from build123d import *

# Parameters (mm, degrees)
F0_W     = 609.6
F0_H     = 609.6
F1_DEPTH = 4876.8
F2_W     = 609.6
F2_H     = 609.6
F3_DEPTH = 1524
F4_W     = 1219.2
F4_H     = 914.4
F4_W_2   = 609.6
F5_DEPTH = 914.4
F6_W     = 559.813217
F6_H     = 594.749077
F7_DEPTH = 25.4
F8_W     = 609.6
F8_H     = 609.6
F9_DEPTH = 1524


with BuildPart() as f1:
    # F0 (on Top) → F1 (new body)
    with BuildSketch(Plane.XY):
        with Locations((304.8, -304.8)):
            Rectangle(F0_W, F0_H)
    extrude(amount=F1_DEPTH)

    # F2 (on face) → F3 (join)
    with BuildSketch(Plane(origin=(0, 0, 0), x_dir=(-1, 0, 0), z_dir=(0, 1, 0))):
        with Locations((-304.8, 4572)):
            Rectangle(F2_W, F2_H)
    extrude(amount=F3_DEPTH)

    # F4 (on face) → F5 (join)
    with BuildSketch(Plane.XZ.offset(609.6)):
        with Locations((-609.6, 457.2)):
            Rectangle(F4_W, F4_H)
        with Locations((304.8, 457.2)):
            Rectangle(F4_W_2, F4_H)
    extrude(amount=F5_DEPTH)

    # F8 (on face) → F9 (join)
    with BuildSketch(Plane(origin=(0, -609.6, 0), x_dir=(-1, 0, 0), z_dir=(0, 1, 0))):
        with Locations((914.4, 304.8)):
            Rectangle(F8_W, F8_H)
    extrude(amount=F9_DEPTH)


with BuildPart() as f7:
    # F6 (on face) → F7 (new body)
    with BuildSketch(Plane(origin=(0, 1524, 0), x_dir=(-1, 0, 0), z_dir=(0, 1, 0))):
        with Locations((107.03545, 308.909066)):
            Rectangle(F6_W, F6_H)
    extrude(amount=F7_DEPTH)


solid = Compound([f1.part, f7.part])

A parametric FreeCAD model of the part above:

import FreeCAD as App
import Part
import Sketcher
Q = App.Units.Quantity


def add_polygon(sketch, points):
    """Adds a closed chain of lines whose ends are joined by coincident constraints."""
    first, n = sketch.GeometryCount, len(points)
    for a, b in zip(points, points[1:] + points[:1]):
        sketch.addGeometry(Part.LineSegment(App.Vector(*a, 0), App.Vector(*b, 0)), False)
    for i in range(n):
        sketch.addConstraint(Sketcher.Constraint("Coincident", first + i, 2, first + (i + 1) % n, 1))

doc = App.newDocument("Part")
params = doc.addObject("Spreadsheet::Sheet", "Params")
for row, (alias, value) in enumerate([
    ("sketch1_width", "24 in"),
    ("pad1_length", "192 in"),
    ("sketch2_width", "24 in"),
    ("pad2_length", "60 in"),
    ("sketch3_width", "72 in"),
    ("sketch3_height", "36 in"),
    ("pad3_length", "36 in"),
    ("sketch4_width", "24 in"),
    ("pad4_length", "60 in"),
    ("pad5_length", "1 in"),
], start=1):
    params.set(f"A{row}", alias)
    params.set(f"B{row}", "=" + value)
    params.setAlias(f"B{row}", alias)

body = doc.addObject("PartDesign::Body", "Body")

sketch1 = body.newObject("Sketcher::SketchObject", "Sketch")
sketch1.AttachmentSupport = (doc.getObject("XY_Plane"), [""])
sketch1.MapMode = "FlatFace"
add_polygon(sketch1, [(0, 0), (0, -609.6), (609.6, -609.6), (609.6, 0)])
sketch1.addConstraint(Sketcher.Constraint("Vertical", 0))
sketch1.addConstraint(Sketcher.Constraint("Horizontal", 1))
sketch1.addConstraint(Sketcher.Constraint("Vertical", 2))
sketch1.addConstraint(Sketcher.Constraint("Horizontal", 3))
sketch1.addConstraint(Sketcher.Constraint("Coincident", 3, 2, -1, 1))
sketch1.addConstraint(Sketcher.Constraint("Equal", 3, 0))
sketch1.addConstraint(Sketcher.Constraint("DistanceX", 1, 1, 1, 2, Q("24 in")))
sketch1.setExpression("Constraints[10]", "Params.sketch1_width")
pad1 = body.newObject("PartDesign::Pad", "Pad")
pad1.Profile = sketch1
pad1.setExpression("Length", "Params.pad1_length")

sketch2 = body.newObject("Sketcher::SketchObject", "Sketch001")
sketch2.AttachmentSupport = (doc.getObject("XZ_Plane"), [""])
sketch2.MapMode = "FlatFace"
add_polygon(sketch2, [(609.6, 4876.8), (609.6, 4267.2), (0, 4267.2), (0, 4876.8)])
sketch2.addConstraint(Sketcher.Constraint("Vertical", 0))
sketch2.addConstraint(Sketcher.Constraint("Horizontal", 1))
sketch2.addConstraint(Sketcher.Constraint("Vertical", 2))
sketch2.addConstraint(Sketcher.Constraint("Horizontal", 3))
sketch2.addConstraint(Sketcher.Constraint("PointOnObject", 1, 2, -2))
sketch2.addConstraint(Sketcher.Constraint("Equal", 3, 0))
sketch2.addConstraint(Sketcher.Constraint("DistanceX", 1, 2, 1, 1, Q("24 in")))
sketch2.addConstraint(Sketcher.Constraint("DistanceY", -1, 1, 0, 2, Q("168 in")))
sketch2.setExpression("Constraints[10]", "Params.sketch2_width")
pad2 = body.newObject("PartDesign::Pad", "Pad001")
pad2.Profile = sketch2
pad2.setExpression("Length", "Params.pad2_length")
pad2.Reversed = True

sketch3 = body.newObject("Sketcher::SketchObject", "Sketch002")
sketch3.AttachmentSupport = (doc.getObject("XZ_Plane"), [""])
sketch3.MapMode = "FlatFace"
sketch3.AttachmentOffset = App.Placement(App.Vector(0, 0, 24 * 25.4), App.Rotation())
add_polygon(sketch3, [(-1219.2, 914.4), (-1219.2, 0), (609.6, 0), (609.6, 914.4)])
sketch3.addConstraint(Sketcher.Constraint("Vertical", 0))
sketch3.addConstraint(Sketcher.Constraint("Horizontal", 1))
sketch3.addConstraint(Sketcher.Constraint("Vertical", 2))
sketch3.addConstraint(Sketcher.Constraint("Horizontal", 3))
sketch3.addConstraint(Sketcher.Constraint("PointOnObject", 0, 2, -1))
sketch3.addConstraint(Sketcher.Constraint("DistanceX", 1, 1, 1, 2, Q("72 in")))
sketch3.addConstraint(Sketcher.Constraint("DistanceY", 0, 2, 0, 1, Q("36 in")))
sketch3.addConstraint(Sketcher.Constraint("DistanceX", 0, 2, -1, 1, Q("48 in")))
sketch3.setExpression("Constraints[9]", "Params.sketch3_width")
sketch3.setExpression("Constraints[10]", "Params.sketch3_height")
pad3 = body.newObject("PartDesign::Pad", "Pad002")
pad3.Profile = sketch3
pad3.setExpression("Length", "Params.pad3_length")

sketch4 = body.newObject("Sketcher::SketchObject", "Sketch003")
sketch4.AttachmentSupport = (doc.getObject("XZ_Plane"), [""])
sketch4.MapMode = "FlatFace"
sketch4.AttachmentOffset = App.Placement(App.Vector(0, 0, 24 * 25.4), App.Rotation())
add_polygon(sketch4, [(-609.6, 609.6), (-609.6, 0), (-1219.2, 0), (-1219.2, 609.6)])
sketch4.addConstraint(Sketcher.Constraint("Vertical", 0))
sketch4.addConstraint(Sketcher.Constraint("Horizontal", 1))
sketch4.addConstraint(Sketcher.Constraint("Vertical", 2))
sketch4.addConstraint(Sketcher.Constraint("Horizontal", 3))
sketch4.addConstraint(Sketcher.Constraint("PointOnObject", 0, 2, -1))
sketch4.addConstraint(Sketcher.Constraint("Equal", 3, 0))
sketch4.addConstraint(Sketcher.Constraint("DistanceX", 1, 2, 1, 1, Q("24 in")))
sketch4.addConstraint(Sketcher.Constraint("DistanceX", 0, 2, -1, 1, Q("24 in")))
sketch4.setExpression("Constraints[10]", "Params.sketch4_width")
pad4 = body.newObject("PartDesign::Pad", "Pad003")
pad4.Profile = sketch4
pad4.setExpression("Length", "Params.pad4_length")
pad4.Reversed = True
body2 = doc.addObject("PartDesign::Body", "Body001")

sketch5 = body2.newObject("Sketcher::SketchObject", "Sketch004")
sketch5.AttachmentSupport = (doc.getObject("XZ_Plane001"), [""])
sketch5.MapMode = "FlatFace"
sketch5.AttachmentOffset = App.Placement(App.Vector(0, 0, -60 * 25.4), App.Rotation())
add_polygon(sketch5, [(172.871159, 606.283605), (172.871159, 11.534527), (-386.942058, 11.534527), (-386.942058, 606.283605)])
sketch5.addConstraint(Sketcher.Constraint("Vertical", 0))
sketch5.addConstraint(Sketcher.Constraint("Horizontal", 1))
sketch5.addConstraint(Sketcher.Constraint("Vertical", 2))
sketch5.addConstraint(Sketcher.Constraint("Horizontal", 3))
sketch5.addConstraint(Sketcher.Constraint("DistanceX", 1, 2, 1, 1, Q("559.813217 mm")))
sketch5.addConstraint(Sketcher.Constraint("DistanceY", 0, 2, 0, 1, Q("594.749077 mm")))
sketch5.addConstraint(Sketcher.Constraint("DistanceX", -1, 1, 0, 2, Q("172.871159 mm")))
sketch5.addConstraint(Sketcher.Constraint("DistanceY", -1, 1, 0, 2, Q("11.534527 mm")))
pad5 = body2.newObject("PartDesign::Pad", "Pad004")
pad5.Profile = sketch5
pad5.setExpression("Length", "Params.pad5_length")
pad5.Reversed = True

doc.recompute()
